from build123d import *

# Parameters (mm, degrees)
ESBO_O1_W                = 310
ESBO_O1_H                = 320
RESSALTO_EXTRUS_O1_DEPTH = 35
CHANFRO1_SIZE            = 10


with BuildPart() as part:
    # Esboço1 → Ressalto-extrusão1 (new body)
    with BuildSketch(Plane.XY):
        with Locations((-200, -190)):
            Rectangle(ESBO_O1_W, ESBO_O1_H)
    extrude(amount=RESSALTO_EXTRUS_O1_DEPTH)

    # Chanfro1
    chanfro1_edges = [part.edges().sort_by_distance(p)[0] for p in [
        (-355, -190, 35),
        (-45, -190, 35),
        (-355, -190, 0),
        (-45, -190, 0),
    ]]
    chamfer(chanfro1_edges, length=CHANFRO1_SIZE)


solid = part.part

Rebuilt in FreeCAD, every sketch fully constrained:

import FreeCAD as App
import Part
import Sketcher


def edges_at(feature, points):
    """Names of the edges that pass closest to the given points."""
    edges = feature.Shape.Edges
    near = lambda p: min(range(len(edges)), key=lambda i: edges[i].distToShape(Part.Vertex(*p))[0])
    return sorted({f"Edge{near(p) + 1}" for p in points})

doc = App.newDocument("Part")
params = doc.addObject("Spreadsheet::Sheet", "Params")
for row, (alias, value) in enumerate([
    ("sketch1_width", "310 mm"),
    ("sketch1_height", "320 mm"),
    ("pad1_length", "35 mm"),
    ("chamfer_size", "10 mm"),
], start=1):
    params.set(f"A{row}", alias)
    params.set(f"B{row}", "=" + value)
    params.setAlias(f"B{row}", alias)

body = doc.addObject("PartDesign::Body", "Body")

# Sketch on XY plane
sketch1 = doc.addObject("Sketcher::SketchObject", "Sketch")
body.addObject(sketch1)
sketch1.AttachmentSupport = (doc.XY_Plane, [""])
sketch1.MapMode = "FlatFace"
sketch1.addGeometry([
    Part.LineSegment(App.Vector(-355, -30, 0), App.Vector(-355, -350, 0)),
    Part.LineSegment(App.Vector(-355, -350, 0), App.Vector(-45, -350, 0)),
    Part.LineSegment(App.Vector(-45, -350, 0), App.Vector(-45, -30, 0)),
    Part.LineSegment(App.Vector(-45, -30, 0), App.Vector(-355, -30, 0)),
], False)
sketch1.addConstraint([
    Sketcher.Constraint("Coincident", 0, 2, 1, 1),
    Sketcher.Constraint("Coincident", 1, 2, 2, 1),
    Sketcher.Constraint("Coincident", 2, 2, 3, 1),
    Sketcher.Constraint("Coincident", 3, 2, 0, 1),
    Sketcher.Constraint("Vertical", 0),
    Sketcher.Constraint("Horizontal", 1),
    Sketcher.Constraint("Vertical", 2),
    Sketcher.Constraint("Horizontal", 3),
    Sketcher.Constraint("DistanceX", 1, 1, 1, 2, 310.0),
    Sketcher.Constraint("DistanceY", 0, 2, 0, 1, 320.0),
    Sketcher.Constraint("DistanceX", 0, 2, -1, 1, 355.0),
    Sketcher.Constraint("DistanceY", 0, 2, -1, 1, 350.0),
])
sketch1.setExpression("Constraints[8]", "Params.sketch1_width")
sketch1.setExpression("Constraints[9]", "Params.sketch1_height")
pad1 = doc.addObject("PartDesign::Pad", "Pad")
body.addObject(pad1)
pad1.Profile = sketch1
pad1.setExpression("Length", "Params.pad1_length")
doc.recompute()

chamfer = doc.addObject("PartDesign::Chamfer", "Chamfer")
body.addObject(chamfer)
chamfer.Base = (pad1, edges_at(pad1, [
    (-355, -190, 35),
    (-45, -190, 35),
    (-355, -190, 0),
    (-45, -190, 0),
]))
chamfer.setExpression("Size", "Params.chamfer_size")

doc.recompute()
